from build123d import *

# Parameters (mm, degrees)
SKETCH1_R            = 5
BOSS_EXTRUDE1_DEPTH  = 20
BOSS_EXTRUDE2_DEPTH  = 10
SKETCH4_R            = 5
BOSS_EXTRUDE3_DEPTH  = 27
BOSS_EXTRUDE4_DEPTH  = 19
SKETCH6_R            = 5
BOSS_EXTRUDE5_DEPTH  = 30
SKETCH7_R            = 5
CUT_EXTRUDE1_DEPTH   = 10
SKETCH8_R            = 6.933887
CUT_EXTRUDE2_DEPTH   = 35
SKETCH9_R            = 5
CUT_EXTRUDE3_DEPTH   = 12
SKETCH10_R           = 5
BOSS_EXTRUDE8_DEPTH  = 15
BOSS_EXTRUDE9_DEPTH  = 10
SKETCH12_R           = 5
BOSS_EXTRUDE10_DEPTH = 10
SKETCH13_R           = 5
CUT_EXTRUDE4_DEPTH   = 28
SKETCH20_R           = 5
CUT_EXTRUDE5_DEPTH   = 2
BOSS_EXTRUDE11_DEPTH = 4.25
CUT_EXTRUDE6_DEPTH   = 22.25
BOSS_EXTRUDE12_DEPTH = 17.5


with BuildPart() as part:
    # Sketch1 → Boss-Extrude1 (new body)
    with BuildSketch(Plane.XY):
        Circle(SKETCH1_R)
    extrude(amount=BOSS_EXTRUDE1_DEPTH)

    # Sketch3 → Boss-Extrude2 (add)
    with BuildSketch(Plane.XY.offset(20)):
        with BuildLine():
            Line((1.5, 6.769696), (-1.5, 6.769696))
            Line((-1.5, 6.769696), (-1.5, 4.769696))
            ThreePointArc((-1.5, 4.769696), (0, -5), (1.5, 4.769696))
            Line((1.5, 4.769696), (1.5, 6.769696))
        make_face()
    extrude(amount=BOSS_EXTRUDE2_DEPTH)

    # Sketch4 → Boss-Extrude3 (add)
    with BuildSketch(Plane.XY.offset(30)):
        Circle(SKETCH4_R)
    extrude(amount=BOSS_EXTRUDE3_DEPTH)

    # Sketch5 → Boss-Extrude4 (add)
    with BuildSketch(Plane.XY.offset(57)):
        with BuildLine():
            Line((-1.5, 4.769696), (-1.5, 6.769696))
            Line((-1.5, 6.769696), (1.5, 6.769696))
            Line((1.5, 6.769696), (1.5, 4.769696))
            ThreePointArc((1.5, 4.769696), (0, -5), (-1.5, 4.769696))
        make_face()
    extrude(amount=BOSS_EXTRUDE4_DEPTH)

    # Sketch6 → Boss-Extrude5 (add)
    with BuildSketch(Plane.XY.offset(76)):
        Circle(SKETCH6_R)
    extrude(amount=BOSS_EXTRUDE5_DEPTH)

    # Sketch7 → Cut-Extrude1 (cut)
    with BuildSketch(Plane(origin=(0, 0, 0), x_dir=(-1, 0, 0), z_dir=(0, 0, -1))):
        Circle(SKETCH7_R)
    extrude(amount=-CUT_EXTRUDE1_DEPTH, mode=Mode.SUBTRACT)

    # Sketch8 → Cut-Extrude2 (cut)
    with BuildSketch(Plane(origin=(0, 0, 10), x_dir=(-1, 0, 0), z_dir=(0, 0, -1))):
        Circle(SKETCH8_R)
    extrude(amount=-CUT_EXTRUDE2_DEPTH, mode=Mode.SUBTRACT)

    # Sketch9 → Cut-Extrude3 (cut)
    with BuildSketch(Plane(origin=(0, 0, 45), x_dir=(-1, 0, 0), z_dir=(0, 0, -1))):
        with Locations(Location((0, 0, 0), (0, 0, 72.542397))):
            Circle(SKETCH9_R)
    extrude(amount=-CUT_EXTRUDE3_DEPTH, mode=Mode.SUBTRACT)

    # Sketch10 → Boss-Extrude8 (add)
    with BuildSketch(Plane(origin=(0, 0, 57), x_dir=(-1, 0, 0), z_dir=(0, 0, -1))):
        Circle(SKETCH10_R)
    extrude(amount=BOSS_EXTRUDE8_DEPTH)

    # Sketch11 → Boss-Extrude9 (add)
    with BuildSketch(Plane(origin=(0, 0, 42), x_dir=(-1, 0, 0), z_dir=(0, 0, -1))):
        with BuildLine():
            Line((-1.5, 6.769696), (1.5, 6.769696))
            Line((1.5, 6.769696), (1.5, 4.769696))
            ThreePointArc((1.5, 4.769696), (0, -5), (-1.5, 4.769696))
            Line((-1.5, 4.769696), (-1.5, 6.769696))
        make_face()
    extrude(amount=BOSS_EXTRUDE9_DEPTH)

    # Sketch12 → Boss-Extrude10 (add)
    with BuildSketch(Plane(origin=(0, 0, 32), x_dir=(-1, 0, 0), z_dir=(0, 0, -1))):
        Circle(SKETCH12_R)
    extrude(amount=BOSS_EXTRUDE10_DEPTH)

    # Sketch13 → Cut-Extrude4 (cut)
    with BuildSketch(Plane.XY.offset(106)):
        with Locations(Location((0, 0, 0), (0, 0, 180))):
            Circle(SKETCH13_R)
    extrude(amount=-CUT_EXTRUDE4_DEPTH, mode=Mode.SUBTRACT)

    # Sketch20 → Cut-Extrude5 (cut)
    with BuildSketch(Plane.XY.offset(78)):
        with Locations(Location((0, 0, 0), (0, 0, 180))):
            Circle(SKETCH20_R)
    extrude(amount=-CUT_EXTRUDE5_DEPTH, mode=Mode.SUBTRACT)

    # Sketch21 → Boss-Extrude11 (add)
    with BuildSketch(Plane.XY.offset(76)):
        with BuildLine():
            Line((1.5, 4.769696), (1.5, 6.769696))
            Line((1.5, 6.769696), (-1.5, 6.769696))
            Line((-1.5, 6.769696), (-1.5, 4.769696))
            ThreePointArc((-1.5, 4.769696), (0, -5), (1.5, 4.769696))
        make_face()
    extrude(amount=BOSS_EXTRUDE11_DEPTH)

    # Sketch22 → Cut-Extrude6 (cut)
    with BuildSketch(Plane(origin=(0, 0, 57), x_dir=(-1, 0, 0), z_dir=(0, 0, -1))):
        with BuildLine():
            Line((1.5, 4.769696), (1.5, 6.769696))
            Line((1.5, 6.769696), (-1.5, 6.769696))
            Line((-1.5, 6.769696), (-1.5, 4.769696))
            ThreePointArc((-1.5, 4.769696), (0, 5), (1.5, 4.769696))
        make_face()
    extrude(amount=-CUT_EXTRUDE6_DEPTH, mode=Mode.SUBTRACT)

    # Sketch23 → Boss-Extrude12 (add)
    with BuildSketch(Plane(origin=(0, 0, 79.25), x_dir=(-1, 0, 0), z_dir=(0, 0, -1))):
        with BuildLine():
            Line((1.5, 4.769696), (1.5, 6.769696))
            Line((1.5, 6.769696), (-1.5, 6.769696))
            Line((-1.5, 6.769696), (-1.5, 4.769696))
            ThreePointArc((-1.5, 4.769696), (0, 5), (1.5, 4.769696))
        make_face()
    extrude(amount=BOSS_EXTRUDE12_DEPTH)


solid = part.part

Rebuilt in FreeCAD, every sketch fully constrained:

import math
import FreeCAD as App
import Part
import Sketcher
from FreeCAD import Vector
Q = App.Units.Quantity

doc = App.newDocument("Part")
body = doc.addObject("PartDesign::Body", "Body")

# Sketch on XY plane
sketch1 = doc.addObject("Sketcher::SketchObject", "Sketch")
body.addObject(sketch1)
sketch1.AttachmentSupport = (doc.XY_Plane, [""])
sketch1.MapMode = "FlatFace"
sketch1.addGeometry(Part.Circle(Vector(0, 0, 0), Vector(0, 0, 1), 5), False)
sketch1.addConstraint(Sketcher.Constraint("Coincident", 0, 3, -1, 1))
sketch1.addConstraint(Sketcher.Constraint("Diameter", 0, Q("10 mm")))
pad1 = doc.addObject("PartDesign::Pad", "Pad")
body.addObject(pad1)
pad1.Profile = sketch1
pad1.Length = 20

# Sketch on XY plane
sketch2 = doc.addObject("Sketcher::SketchObject", "Sketch001")
body.addObject(sketch2)
sketch2.AttachmentSupport = (doc.XY_Plane, [""])
sketch2.MapMode = "FlatFace"
sketch2.AttachmentOffset = App.Placement(Vector(0, 0, 20), App.Rotation())
sketch2.addGeometry(Part.LineSegment(Vector(1.5, 6.8, 0), Vector(-1.5, 6.8, 0)), False)
sketch2.addGeometry(Part.LineSegment(Vector(-1.5, 6.8, 0), Vector(-1.5, 4.8, 0)), False)
sketch2.addGeometry(Part.ArcOfCircle(Part.Circle(Vector(0, 0, 0), Vector(0, 0, 1), 5), math.radians(107), math.radians(433)), False)
sketch2.addGeometry(Part.LineSegment(Vector(1.5, 4.8, 0), Vector(1.5, 6.8, 0)), False)
sketch2.addConstraint(Sketcher.Constraint("Coincident", 0, 2, 1, 1))
sketch2.addConstraint(Sketcher.Constraint("Coincident", 1, 2, 2, 1))
sketch2.addConstraint(Sketcher.Constraint("Coincident", 2, 2, 3, 1))
sketch2.addConstraint(Sketcher.Constraint("Coincident", 3, 2, 0, 1))
sketch2.addConstraint(Sketcher.Constraint("Horizontal", 0))
sketch2.addConstraint(Sketcher.Constraint("Vertical", 1))
sketch2.addConstraint(Sketcher.Constraint("Vertical", 3))
sketch2.addConstraint(Sketcher.Constraint("Coincident", 2, 3, -1, 1))
sketch2.addConstraint(Sketcher.Constraint("Horizontal", 1, 2, 2, 2))
sketch2.addConstraint(Sketcher.Constraint("Radius", 2, Q("5 mm")))
sketch2.addConstraint(Sketcher.Constraint("DistanceX", 0, 2, 0, 1, Q("3 mm")))
sketch2.addConstraint(Sketcher.Constraint("DistanceY", 1, 2, 1, 1, Q("2 mm")))
pad2 = doc.addObject("PartDesign::Pad", "Pad001")
body.addObject(pad2)
pad2.Profile = sketch2
pad2.Length = 10

# Sketch on XY plane
sketch3 = doc.addObject("Sketcher::SketchObject", "Sketch002")
body.addObject(sketch3)
sketch3.AttachmentSupport = (doc.XY_Plane, [""])
sketch3.MapMode = "FlatFace"
sketch3.AttachmentOffset = App.Placement(Vector(0, 0, 30), App.Rotation())
sketch3.addGeometry(Part.Circle(Vector(0, 0, 0), Vector(0, 0, 1), 5), False)
sketch3.addConstraint(Sketcher.Constraint("Coincident", 0, 3, -1, 1))
sketch3.addConstraint(Sketcher.Constraint("Diameter", 0, Q("10 mm")))
pad3 = doc.addObject("PartDesign::Pad", "Pad002")
body.addObject(pad3)
pad3.Profile = sketch3
pad3.Length = 27

# Sketch on XY plane
sketch4 = doc.addObject("Sketcher::SketchObject", "Sketch003")
body.addObject(sketch4)
sketch4.AttachmentSupport = (doc.XY_Plane, [""])
sketch4.MapMode = "FlatFace"
sketch4.AttachmentOffset = App.Placement(Vector(0, 0, 57), App.Rotation())
sketch4.addGeometry(Part.LineSegment(Vector(-1.5, 6.8, 0), Vector(-1.5, 4.8, 0)), False)
sketch4.addGeometry(Part.ArcOfCircle(Part.Circle(Vector(0, 0, 0), Vector(0, 0, 1), 5), math.radians(107), math.radians(433)), False)
sketch4.addGeometry(Part.LineSegment(Vector(1.5, 4.8, 0), Vector(1.5, 6.8, 0)), False)
sketch4.addGeometry(Part.LineSegment(Vector(1.5, 6.8, 0), Vector(-1.5, 6.8, 0)), False)
sketch4.addConstraint(Sketcher.Constraint("Coincident", 0, 2, 1, 1))
sketch4.addConstraint(Sketcher.Constraint("Coincident", 1, 2, 2, 1))
sketch4.addConstraint(Sketcher.Constraint("Coincident", 2, 2, 3, 1))
sketch4.addConstraint(Sketcher.Constraint("Coincident", 3, 2, 0, 1))
sketch4.addConstraint(Sketcher.Constraint("Vertical", 0))
sketch4.addConstraint(Sketcher.Constraint("Vertical", 2))
sketch4.addConstraint(Sketcher.Constraint("Horizontal", 3))
sketch4.addConstraint(Sketcher.Constraint("Coincident", 1, 3, -1, 1))
sketch4.addConstraint(Sketcher.Constraint("Horizontal", 0, 2, 1, 2))
sketch4.addConstraint(Sketcher.Constraint("Radius", 1, Q("5 mm")))
sketch4.addConstraint(Sketcher.Constraint("DistanceX", 3, 2, 3, 1, Q("3 mm")))
sketch4.addConstraint(Sketcher.Constraint("DistanceY", 0, 2, 0, 1, Q("2 mm")))
pad4 = doc.addObject("PartDesign::Pad", "Pad003")
body.addObject(pad4)
pad4.Profile = sketch4
pad4.Length = 19

# Sketch on XY plane
sketch5 = doc.addObject("Sketcher::SketchObject", "Sketch004")
body.addObject(sketch5)
sketch5.AttachmentSupport = (doc.XY_Plane, [""])
sketch5.MapMode = "FlatFace"
sketch5.AttachmentOffset = App.Placement(Vector(0, 0, 76), App.Rotation())
sketch5.addGeometry(Part.Circle(Vector(0, 0, 0), Vector(0, 0, 1), 5), False)
sketch5.addConstraint(Sketcher.Constraint("Coincident", 0, 3, -1, 1))
sketch5.addConstraint(Sketcher.Constraint("Diameter", 0, Q("10 mm")))
pad5 = doc.addObject("PartDesign::Pad", "Pad004")
body.addObject(pad5)
pad5.Profile = sketch5
pad5.Length = 30

# Sketch on XY plane
sketch6 = doc.addObject("Sketcher::SketchObject", "Sketch005")
body.addObject(sketch6)
sketch6.AttachmentSupport = (doc.XY_Plane, [""])
sketch6.MapMode = "FlatFace"
sketch6.addGeometry(Part.Circle(Vector(0, 0, 0), Vector(0, 0, 1), 5), False)
sketch6.addConstraint(Sketcher.Constraint("Coincident", 0, 3, -1, 1))
sketch6.addConstraint(Sketcher.Constraint("Diameter", 0, Q("10 mm")))
pocket1 = doc.addObject("PartDesign::Pocket", "Pocket")
body.addObject(pocket1)
pocket1.Profile = sketch6
pocket1.Length = 10
pocket1.Reversed = True

# Sketch on XY plane
sketch7 = doc.addObject("Sketcher::SketchObject", "Sketch006")
body.addObject(sketch7)
sketch7.AttachmentSupport = (doc.XY_Plane, [""])
sketch7.MapMode = "FlatFace"
sketch7.AttachmentOffset = App.Placement(Vector(0, 0, 10), App.Rotation())
sketch7.addGeometry(Part.Circle(Vector(0, 0, 0), Vector(0, 0, 1), 7), False)
sketch7.addConstraint(Sketcher.Constraint("Coincident", 0, 3, -1, 1))
sketch7.addConstraint(Sketcher.Constraint("Diameter", 0, Q("13.867774 mm")))
pocket2 = doc.addObject("PartDesign::Pocket", "Pocket001")
body.addObject(pocket2)
pocket2.Profile = sketch7
pocket2.Length = 35
pocket2.Reversed = True

# Sketch on XY plane
sketch8 = doc.addObject("Sketcher::SketchObject", "Sketch007")
body.addObject(sketch8)
sketch8.AttachmentSupport = (doc.XY_Plane, [""])
sketch8.MapMode = "FlatFace"
sketch8.AttachmentOffset = App.Placement(Vector(0, 0, 45), App.Rotation())
sketch8.addGeometry(Part.Circle(Vector(0, 0, 0), Vector(0, 0, 1), 5), False)
sketch8.addConstraint(Sketcher.Constraint("Coincident", 0, 3, -1, 1))
sketch8.addConstraint(Sketcher.Constraint("Diameter", 0, Q("10 mm")))
pocket3 = doc.addObject("PartDesign::Pocket", "Pocket002")
body.addObject(pocket3)
pocket3.Profile = sketch8
pocket3.Length = 12
pocket3.Reversed = True

# Sketch on XY plane
sketch9 = doc.addObject("Sketcher::SketchObject", "Sketch008")
body.addObject(sketch9)
sketch9.AttachmentSupport = (doc.XY_Plane, [""])
sketch9.MapMode = "FlatFace"
sketch9.AttachmentOffset = App.Placement(Vector(0, 0, 57), App.Rotation())
sketch9.addGeometry(Part.Circle(Vector(0, 0, 0), Vector(0, 0, 1), 5), False)
sketch9.addConstraint(Sketcher.Constraint("Coincident", 0, 3, -1, 1))
sketch9.addConstraint(Sketcher.Constraint("Diameter", 0, Q("10 mm")))
pad6 = doc.addObject("PartDesign::Pad", "Pad005")
body.addObject(pad6)
pad6.Profile = sketch9
pad6.Length = 15
pad6.Reversed = True

# Sketch on XY plane
sketch10 = doc.addObject("Sketcher::SketchObject", "Sketch009")
body.addObject(sketch10)
sketch10.AttachmentSupport = (doc.XY_Plane, [""])
sketch10.MapMode = "FlatFace"
sketch10.AttachmentOffset = App.Placement(Vector(0, 0, 42), App.Rotation())
sketch10.addGeometry(Part.LineSegment(Vector(-1.5, 6.8, 0), Vector(1.5, 6.8, 0)), False)
sketch10.addGeometry(Part.LineSegment(Vector(1.5, 6.8, 0), Vector(1.5, 4.8, 0)), False)
sketch10.addGeometry(Part.ArcOfCircle(Part.Circle(Vector(0, 0, 0), Vector(0, 0, 1), 5), math.radians(107), math.radians(433)), False)
sketch10.addGeometry(Part.LineSegment(Vector(-1.5, 4.8, 0), Vector(-1.5, 6.8, 0)), False)
sketch10.addConstraint(Sketcher.Constraint("Coincident", 0, 2, 1, 1))
sketch10.addConstraint(Sketcher.Constraint("Coincident", 1, 2, 2, 2))
sketch10.addConstraint(Sketcher.Constraint("Coincident", 2, 1, 3, 1))
sketch10.addConstraint(Sketcher.Constraint("Coincident", 3, 2, 0, 1))
sketch10.addConstraint(Sketcher.Constraint("Horizontal", 0))
sketch10.addConstraint(Sketcher.Constraint("Vertical", 1))
sketch10.addConstraint(Sketcher.Constraint("Vertical", 3))
sketch10.addConstraint(Sketcher.Constraint("Coincident", 2, 3, -1, 1))
sketch10.addConstraint(Sketcher.Constraint("Horizontal", 1, 2, 2, 1))
sketch10.addConstraint(Sketcher.Constraint("Radius", 2, Q("5 mm")))
sketch10.addConstraint(Sketcher.Constraint("DistanceX", 0, 1, 0, 2, Q("3 mm")))
sketch10.addConstraint(Sketcher.Constraint("DistanceY", 1, 2, 1, 1, Q("2 mm")))
pad7 = doc.addObject("PartDesign::Pad", "Pad006")
body.addObject(pad7)
pad7.Profile = sketch10
pad7.Length = 10
pad7.Reversed = True

# Sketch on XY plane
sketch11 = doc.addObject("Sketcher::SketchObject", "Sketch010")
body.addObject(sketch11)
sketch11.AttachmentSupport = (doc.XY_Plane, [""])
sketch11.MapMode = "FlatFace"
sketch11.AttachmentOffset = App.Placement(Vector(0, 0, 32), App.Rotation())
sketch11.addGeometry(Part.Circle(Vector(0, 0, 0), Vector(0, 0, 1), 5), False)
sketch11.addConstraint(Sketcher.Constraint("Coincident", 0, 3, -1, 1))
sketch11.addConstraint(Sketcher.Constraint("Diameter", 0, Q("10 mm")))
pad8 = doc.addObject("PartDesign::Pad", "Pad007")
body.addObject(pad8)
pad8.Profile = sketch11
pad8.Length = 10
pad8.Reversed = True

# Sketch on XY plane
sketch12 = doc.addObject("Sketcher::SketchObject", "Sketch011")
body.addObject(sketch12)
sketch12.AttachmentSupport = (doc.XY_Plane, [""])
sketch12.MapMode = "FlatFace"
sketch12.AttachmentOffset = App.Placement(Vector(0, 0, 106), App.Rotation())
sketch12.addGeometry(Part.Circle(Vector(0, 0, 0), Vector(0, 0, 1), 5), False)
sketch12.addConstraint(Sketcher.Constraint("Coincident", 0, 3, -1, 1))
sketch12.addConstraint(Sketcher.Constraint("Diameter", 0, Q("10 mm")))
pocket4 = doc.addObject("PartDesign::Pocket", "Pocket003")
body.addObject(pocket4)
pocket4.Profile = sketch12
pocket4.Length = 28

# Sketch on XY plane
sketch13 = doc.addObject("Sketcher::SketchObject", "Sketch012")
body.addObject(sketch13)
sketch13.AttachmentSupport = (doc.XY_Plane, [""])
sketch13.MapMode = "FlatFace"
sketch13.AttachmentOffset = App.Placement(Vector(0, 0, 78), App.Rotation())
sketch13.addGeometry(Part.Circle(Vector(0, 0, 0), Vector(0, 0, 1), 5), False)
sketch13.addConstraint(Sketcher.Constraint("Coincident", 0, 3, -1, 1))
sketch13.addConstraint(Sketcher.Constraint("Diameter", 0, Q("10 mm")))
pocket5 = doc.addObject("PartDesign::Pocket", "Pocket004")
body.addObject(pocket5)
pocket5.Profile = sketch13
pocket5.Length = 2

# Sketch on XY plane
sketch14 = doc.addObject("Sketcher::SketchObject", "Sketch013")
body.addObject(sketch14)
sketch14.AttachmentSupport = (doc.XY_Plane, [""])
sketch14.MapMode = "FlatFace"
sketch14.AttachmentOffset = App.Placement(Vector(0, 0, 76), App.Rotation())
sketch14.addGeometry(Part.LineSegment(Vector(1.5, 4.8, 0), Vector(1.5, 6.8, 0)), False)
sketch14.addGeometry(Part.LineSegment(Vector(1.5, 6.8, 0), Vector(-1.5, 6.8, 0)), False)
sketch14.addGeometry(Part.LineSegment(Vector(-1.5, 6.8, 0), Vector(-1.5, 4.8, 0)), False)
sketch14.addGeometry(Part.ArcOfCircle(Part.Circle(Vector(0, 0, 0), Vector(0, 0, 1), 5), math.radians(107), math.radians(433)), False)
sketch14.addConstraint(Sketcher.Constraint("Coincident", 0, 2, 1, 1))
sketch14.addConstraint(Sketcher.Constraint("Coincident", 1, 2, 2, 1))
sketch14.addConstraint(Sketcher.Constraint("Coincident", 2, 2, 3, 1))
sketch14.addConstraint(Sketcher.Constraint("Coincident", 3, 2, 0, 1))
sketch14.addConstraint(Sketcher.Constraint("Vertical", 0))
sketch14.addConstraint(Sketcher.Constraint("Horizontal", 1))
sketch14.addConstraint(Sketcher.Constraint("Vertical", 2))
sketch14.addConstraint(Sketcher.Constraint("Coincident", 3, 3, -1, 1))
sketch14.addConstraint(Sketcher.Constraint("Horizontal", 2, 2, 3, 2))
sketch14.addConstraint(Sketcher.Constraint("Radius", 3, Q("5 mm")))
sketch14.addConstraint(Sketcher.Constraint("DistanceX", 1, 2, 1, 1, Q("3 mm")))
sketch14.addConstraint(Sketcher.Constraint("DistanceY", 0, 1, 0, 2, Q("2 mm")))
pad9 = doc.addObject("PartDesign::Pad", "Pad008")
body.addObject(pad9)
pad9.Profile = sketch14
pad9.Length = 4.25

# Sketch on XY plane
sketch15 = doc.addObject("Sketcher::SketchObject", "Sketch014")
body.addObject(sketch15)
sketch15.AttachmentSupport = (doc.XY_Plane, [""])
sketch15.MapMode = "FlatFace"
sketch15.AttachmentOffset = App.Placement(Vector(0, 0, 57), App.Rotation())
sketch15.addGeometry(Part.LineSegment(Vector(-1.5, 4.8, 0), Vector(-1.5, 6.8, 0)), False)
sketch15.addGeometry(Part.LineSegment(Vector(-1.5, 6.8, 0), Vector(1.5, 6.8, 0)), False)
sketch15.addGeometry(Part.LineSegment(Vector(1.5, 6.8, 0), Vector(1.5, 4.8, 0)), False)
sketch15.addGeometry(Part.ArcOfCircle(Part.Circle(Vector(0, 0, 0), Vector(0, 0, 1), 5), math.radians(73), math.radians(107)), False)
sketch15.addConstraint(Sketcher.Constraint("Coincident", 0, 2, 1, 1))
sketch15.addConstraint(Sketcher.Constraint("Coincident", 1, 2, 2, 1))
sketch15.addConstraint(Sketcher.Constraint("Coincident", 2, 2, 3, 1))
sketch15.addConstraint(Sketcher.Constraint("Coincident", 3, 2, 0, 1))
sketch15.addConstraint(Sketcher.Constraint("Vertical", 0))
sketch15.addConstraint(Sketcher.Constraint("Horizontal", 1))
sketch15.addConstraint(Sketcher.Constraint("Vertical", 2))
sketch15.addConstraint(Sketcher.Constraint("Coincident", 3, 3, -1, 1))
sketch15.addConstraint(Sketcher.Constraint("Horizontal", 2, 2, 3, 2))
sketch15.addConstraint(Sketcher.Constraint("Radius", 3, Q("5 mm")))
sketch15.addConstraint(Sketcher.Constraint("DistanceX", 1, 1, 1, 2, Q("3 mm")))
sketch15.addConstraint(Sketcher.Constraint("DistanceY", 0, 1, 0, 2, Q("2 mm")))
pocket6 = doc.addObject("PartDesign::Pocket", "Pocket005")
body.addObject(pocket6)
pocket6.Profile = sketch15
pocket6.Length = 22.25
pocket6.Reversed = True

# Sketch on XY plane
sketch16 = doc.addObject("Sketcher::SketchObject", "Sketch015")
body.addObject(sketch16)
sketch16.AttachmentSupport = (doc.XY_Plane, [""])
sketch16.MapMode = "FlatFace"
sketch16.AttachmentOffset = App.Placement(Vector(0, 0, 79.25), App.Rotation())
sketch16.addGeometry(Part.LineSegment(Vector(-1.5, 4.8, 0), Vector(-1.5, 6.8, 0)), False)
sketch16.addGeometry(Part.LineSegment(Vector(-1.5, 6.8, 0), Vector(1.5, 6.8, 0)), False)
sketch16.addGeometry(Part.LineSegment(Vector(1.5, 6.8, 0), Vector(1.5, 4.8, 0)), False)
sketch16.addGeometry(Part.ArcOfCircle(Part.Circle(Vector(0, 0, 0), Vector(0, 0, 1), 5), math.radians(73), math.radians(107)), False)
sketch16.addConstraint(Sketcher.Constraint("Coincident", 0, 2, 1, 1))
sketch16.addConstraint(Sketcher.Constraint("Coincident", 1, 2, 2, 1))
sketch16.addConstraint(Sketcher.Constraint("Coincident", 2, 2, 3, 1))
sketch16.addConstraint(Sketcher.Constraint("Coincident", 3, 2, 0, 1))
sketch16.addConstraint(Sketcher.Constraint("Vertical", 0))
sketch16.addConstraint(Sketcher.Constraint("Horizontal", 1))
sketch16.addConstraint(Sketcher.Constraint("Vertical", 2))
sketch16.addConstraint(Sketcher.Constraint("Coincident", 3, 3, -1, 1))
sketch16.addConstraint(Sketcher.Constraint("Horizontal", 2, 2, 3, 2))
sketch16.addConstraint(Sketcher.Constraint("Radius", 3, Q("5 mm")))
sketch16.addConstraint(Sketcher.Constraint("DistanceX", 1, 1, 1, 2, Q("3 mm")))
sketch16.addConstraint(Sketcher.Constraint("DistanceY", 0, 1, 0, 2, Q("2 mm")))
pad10 = doc.addObject("PartDesign::Pad", "Pad009")
body.addObject(pad10)
pad10.Profile = sketch16
pad10.Length = 17.5
pad10.Reversed = True

doc.recompute()
